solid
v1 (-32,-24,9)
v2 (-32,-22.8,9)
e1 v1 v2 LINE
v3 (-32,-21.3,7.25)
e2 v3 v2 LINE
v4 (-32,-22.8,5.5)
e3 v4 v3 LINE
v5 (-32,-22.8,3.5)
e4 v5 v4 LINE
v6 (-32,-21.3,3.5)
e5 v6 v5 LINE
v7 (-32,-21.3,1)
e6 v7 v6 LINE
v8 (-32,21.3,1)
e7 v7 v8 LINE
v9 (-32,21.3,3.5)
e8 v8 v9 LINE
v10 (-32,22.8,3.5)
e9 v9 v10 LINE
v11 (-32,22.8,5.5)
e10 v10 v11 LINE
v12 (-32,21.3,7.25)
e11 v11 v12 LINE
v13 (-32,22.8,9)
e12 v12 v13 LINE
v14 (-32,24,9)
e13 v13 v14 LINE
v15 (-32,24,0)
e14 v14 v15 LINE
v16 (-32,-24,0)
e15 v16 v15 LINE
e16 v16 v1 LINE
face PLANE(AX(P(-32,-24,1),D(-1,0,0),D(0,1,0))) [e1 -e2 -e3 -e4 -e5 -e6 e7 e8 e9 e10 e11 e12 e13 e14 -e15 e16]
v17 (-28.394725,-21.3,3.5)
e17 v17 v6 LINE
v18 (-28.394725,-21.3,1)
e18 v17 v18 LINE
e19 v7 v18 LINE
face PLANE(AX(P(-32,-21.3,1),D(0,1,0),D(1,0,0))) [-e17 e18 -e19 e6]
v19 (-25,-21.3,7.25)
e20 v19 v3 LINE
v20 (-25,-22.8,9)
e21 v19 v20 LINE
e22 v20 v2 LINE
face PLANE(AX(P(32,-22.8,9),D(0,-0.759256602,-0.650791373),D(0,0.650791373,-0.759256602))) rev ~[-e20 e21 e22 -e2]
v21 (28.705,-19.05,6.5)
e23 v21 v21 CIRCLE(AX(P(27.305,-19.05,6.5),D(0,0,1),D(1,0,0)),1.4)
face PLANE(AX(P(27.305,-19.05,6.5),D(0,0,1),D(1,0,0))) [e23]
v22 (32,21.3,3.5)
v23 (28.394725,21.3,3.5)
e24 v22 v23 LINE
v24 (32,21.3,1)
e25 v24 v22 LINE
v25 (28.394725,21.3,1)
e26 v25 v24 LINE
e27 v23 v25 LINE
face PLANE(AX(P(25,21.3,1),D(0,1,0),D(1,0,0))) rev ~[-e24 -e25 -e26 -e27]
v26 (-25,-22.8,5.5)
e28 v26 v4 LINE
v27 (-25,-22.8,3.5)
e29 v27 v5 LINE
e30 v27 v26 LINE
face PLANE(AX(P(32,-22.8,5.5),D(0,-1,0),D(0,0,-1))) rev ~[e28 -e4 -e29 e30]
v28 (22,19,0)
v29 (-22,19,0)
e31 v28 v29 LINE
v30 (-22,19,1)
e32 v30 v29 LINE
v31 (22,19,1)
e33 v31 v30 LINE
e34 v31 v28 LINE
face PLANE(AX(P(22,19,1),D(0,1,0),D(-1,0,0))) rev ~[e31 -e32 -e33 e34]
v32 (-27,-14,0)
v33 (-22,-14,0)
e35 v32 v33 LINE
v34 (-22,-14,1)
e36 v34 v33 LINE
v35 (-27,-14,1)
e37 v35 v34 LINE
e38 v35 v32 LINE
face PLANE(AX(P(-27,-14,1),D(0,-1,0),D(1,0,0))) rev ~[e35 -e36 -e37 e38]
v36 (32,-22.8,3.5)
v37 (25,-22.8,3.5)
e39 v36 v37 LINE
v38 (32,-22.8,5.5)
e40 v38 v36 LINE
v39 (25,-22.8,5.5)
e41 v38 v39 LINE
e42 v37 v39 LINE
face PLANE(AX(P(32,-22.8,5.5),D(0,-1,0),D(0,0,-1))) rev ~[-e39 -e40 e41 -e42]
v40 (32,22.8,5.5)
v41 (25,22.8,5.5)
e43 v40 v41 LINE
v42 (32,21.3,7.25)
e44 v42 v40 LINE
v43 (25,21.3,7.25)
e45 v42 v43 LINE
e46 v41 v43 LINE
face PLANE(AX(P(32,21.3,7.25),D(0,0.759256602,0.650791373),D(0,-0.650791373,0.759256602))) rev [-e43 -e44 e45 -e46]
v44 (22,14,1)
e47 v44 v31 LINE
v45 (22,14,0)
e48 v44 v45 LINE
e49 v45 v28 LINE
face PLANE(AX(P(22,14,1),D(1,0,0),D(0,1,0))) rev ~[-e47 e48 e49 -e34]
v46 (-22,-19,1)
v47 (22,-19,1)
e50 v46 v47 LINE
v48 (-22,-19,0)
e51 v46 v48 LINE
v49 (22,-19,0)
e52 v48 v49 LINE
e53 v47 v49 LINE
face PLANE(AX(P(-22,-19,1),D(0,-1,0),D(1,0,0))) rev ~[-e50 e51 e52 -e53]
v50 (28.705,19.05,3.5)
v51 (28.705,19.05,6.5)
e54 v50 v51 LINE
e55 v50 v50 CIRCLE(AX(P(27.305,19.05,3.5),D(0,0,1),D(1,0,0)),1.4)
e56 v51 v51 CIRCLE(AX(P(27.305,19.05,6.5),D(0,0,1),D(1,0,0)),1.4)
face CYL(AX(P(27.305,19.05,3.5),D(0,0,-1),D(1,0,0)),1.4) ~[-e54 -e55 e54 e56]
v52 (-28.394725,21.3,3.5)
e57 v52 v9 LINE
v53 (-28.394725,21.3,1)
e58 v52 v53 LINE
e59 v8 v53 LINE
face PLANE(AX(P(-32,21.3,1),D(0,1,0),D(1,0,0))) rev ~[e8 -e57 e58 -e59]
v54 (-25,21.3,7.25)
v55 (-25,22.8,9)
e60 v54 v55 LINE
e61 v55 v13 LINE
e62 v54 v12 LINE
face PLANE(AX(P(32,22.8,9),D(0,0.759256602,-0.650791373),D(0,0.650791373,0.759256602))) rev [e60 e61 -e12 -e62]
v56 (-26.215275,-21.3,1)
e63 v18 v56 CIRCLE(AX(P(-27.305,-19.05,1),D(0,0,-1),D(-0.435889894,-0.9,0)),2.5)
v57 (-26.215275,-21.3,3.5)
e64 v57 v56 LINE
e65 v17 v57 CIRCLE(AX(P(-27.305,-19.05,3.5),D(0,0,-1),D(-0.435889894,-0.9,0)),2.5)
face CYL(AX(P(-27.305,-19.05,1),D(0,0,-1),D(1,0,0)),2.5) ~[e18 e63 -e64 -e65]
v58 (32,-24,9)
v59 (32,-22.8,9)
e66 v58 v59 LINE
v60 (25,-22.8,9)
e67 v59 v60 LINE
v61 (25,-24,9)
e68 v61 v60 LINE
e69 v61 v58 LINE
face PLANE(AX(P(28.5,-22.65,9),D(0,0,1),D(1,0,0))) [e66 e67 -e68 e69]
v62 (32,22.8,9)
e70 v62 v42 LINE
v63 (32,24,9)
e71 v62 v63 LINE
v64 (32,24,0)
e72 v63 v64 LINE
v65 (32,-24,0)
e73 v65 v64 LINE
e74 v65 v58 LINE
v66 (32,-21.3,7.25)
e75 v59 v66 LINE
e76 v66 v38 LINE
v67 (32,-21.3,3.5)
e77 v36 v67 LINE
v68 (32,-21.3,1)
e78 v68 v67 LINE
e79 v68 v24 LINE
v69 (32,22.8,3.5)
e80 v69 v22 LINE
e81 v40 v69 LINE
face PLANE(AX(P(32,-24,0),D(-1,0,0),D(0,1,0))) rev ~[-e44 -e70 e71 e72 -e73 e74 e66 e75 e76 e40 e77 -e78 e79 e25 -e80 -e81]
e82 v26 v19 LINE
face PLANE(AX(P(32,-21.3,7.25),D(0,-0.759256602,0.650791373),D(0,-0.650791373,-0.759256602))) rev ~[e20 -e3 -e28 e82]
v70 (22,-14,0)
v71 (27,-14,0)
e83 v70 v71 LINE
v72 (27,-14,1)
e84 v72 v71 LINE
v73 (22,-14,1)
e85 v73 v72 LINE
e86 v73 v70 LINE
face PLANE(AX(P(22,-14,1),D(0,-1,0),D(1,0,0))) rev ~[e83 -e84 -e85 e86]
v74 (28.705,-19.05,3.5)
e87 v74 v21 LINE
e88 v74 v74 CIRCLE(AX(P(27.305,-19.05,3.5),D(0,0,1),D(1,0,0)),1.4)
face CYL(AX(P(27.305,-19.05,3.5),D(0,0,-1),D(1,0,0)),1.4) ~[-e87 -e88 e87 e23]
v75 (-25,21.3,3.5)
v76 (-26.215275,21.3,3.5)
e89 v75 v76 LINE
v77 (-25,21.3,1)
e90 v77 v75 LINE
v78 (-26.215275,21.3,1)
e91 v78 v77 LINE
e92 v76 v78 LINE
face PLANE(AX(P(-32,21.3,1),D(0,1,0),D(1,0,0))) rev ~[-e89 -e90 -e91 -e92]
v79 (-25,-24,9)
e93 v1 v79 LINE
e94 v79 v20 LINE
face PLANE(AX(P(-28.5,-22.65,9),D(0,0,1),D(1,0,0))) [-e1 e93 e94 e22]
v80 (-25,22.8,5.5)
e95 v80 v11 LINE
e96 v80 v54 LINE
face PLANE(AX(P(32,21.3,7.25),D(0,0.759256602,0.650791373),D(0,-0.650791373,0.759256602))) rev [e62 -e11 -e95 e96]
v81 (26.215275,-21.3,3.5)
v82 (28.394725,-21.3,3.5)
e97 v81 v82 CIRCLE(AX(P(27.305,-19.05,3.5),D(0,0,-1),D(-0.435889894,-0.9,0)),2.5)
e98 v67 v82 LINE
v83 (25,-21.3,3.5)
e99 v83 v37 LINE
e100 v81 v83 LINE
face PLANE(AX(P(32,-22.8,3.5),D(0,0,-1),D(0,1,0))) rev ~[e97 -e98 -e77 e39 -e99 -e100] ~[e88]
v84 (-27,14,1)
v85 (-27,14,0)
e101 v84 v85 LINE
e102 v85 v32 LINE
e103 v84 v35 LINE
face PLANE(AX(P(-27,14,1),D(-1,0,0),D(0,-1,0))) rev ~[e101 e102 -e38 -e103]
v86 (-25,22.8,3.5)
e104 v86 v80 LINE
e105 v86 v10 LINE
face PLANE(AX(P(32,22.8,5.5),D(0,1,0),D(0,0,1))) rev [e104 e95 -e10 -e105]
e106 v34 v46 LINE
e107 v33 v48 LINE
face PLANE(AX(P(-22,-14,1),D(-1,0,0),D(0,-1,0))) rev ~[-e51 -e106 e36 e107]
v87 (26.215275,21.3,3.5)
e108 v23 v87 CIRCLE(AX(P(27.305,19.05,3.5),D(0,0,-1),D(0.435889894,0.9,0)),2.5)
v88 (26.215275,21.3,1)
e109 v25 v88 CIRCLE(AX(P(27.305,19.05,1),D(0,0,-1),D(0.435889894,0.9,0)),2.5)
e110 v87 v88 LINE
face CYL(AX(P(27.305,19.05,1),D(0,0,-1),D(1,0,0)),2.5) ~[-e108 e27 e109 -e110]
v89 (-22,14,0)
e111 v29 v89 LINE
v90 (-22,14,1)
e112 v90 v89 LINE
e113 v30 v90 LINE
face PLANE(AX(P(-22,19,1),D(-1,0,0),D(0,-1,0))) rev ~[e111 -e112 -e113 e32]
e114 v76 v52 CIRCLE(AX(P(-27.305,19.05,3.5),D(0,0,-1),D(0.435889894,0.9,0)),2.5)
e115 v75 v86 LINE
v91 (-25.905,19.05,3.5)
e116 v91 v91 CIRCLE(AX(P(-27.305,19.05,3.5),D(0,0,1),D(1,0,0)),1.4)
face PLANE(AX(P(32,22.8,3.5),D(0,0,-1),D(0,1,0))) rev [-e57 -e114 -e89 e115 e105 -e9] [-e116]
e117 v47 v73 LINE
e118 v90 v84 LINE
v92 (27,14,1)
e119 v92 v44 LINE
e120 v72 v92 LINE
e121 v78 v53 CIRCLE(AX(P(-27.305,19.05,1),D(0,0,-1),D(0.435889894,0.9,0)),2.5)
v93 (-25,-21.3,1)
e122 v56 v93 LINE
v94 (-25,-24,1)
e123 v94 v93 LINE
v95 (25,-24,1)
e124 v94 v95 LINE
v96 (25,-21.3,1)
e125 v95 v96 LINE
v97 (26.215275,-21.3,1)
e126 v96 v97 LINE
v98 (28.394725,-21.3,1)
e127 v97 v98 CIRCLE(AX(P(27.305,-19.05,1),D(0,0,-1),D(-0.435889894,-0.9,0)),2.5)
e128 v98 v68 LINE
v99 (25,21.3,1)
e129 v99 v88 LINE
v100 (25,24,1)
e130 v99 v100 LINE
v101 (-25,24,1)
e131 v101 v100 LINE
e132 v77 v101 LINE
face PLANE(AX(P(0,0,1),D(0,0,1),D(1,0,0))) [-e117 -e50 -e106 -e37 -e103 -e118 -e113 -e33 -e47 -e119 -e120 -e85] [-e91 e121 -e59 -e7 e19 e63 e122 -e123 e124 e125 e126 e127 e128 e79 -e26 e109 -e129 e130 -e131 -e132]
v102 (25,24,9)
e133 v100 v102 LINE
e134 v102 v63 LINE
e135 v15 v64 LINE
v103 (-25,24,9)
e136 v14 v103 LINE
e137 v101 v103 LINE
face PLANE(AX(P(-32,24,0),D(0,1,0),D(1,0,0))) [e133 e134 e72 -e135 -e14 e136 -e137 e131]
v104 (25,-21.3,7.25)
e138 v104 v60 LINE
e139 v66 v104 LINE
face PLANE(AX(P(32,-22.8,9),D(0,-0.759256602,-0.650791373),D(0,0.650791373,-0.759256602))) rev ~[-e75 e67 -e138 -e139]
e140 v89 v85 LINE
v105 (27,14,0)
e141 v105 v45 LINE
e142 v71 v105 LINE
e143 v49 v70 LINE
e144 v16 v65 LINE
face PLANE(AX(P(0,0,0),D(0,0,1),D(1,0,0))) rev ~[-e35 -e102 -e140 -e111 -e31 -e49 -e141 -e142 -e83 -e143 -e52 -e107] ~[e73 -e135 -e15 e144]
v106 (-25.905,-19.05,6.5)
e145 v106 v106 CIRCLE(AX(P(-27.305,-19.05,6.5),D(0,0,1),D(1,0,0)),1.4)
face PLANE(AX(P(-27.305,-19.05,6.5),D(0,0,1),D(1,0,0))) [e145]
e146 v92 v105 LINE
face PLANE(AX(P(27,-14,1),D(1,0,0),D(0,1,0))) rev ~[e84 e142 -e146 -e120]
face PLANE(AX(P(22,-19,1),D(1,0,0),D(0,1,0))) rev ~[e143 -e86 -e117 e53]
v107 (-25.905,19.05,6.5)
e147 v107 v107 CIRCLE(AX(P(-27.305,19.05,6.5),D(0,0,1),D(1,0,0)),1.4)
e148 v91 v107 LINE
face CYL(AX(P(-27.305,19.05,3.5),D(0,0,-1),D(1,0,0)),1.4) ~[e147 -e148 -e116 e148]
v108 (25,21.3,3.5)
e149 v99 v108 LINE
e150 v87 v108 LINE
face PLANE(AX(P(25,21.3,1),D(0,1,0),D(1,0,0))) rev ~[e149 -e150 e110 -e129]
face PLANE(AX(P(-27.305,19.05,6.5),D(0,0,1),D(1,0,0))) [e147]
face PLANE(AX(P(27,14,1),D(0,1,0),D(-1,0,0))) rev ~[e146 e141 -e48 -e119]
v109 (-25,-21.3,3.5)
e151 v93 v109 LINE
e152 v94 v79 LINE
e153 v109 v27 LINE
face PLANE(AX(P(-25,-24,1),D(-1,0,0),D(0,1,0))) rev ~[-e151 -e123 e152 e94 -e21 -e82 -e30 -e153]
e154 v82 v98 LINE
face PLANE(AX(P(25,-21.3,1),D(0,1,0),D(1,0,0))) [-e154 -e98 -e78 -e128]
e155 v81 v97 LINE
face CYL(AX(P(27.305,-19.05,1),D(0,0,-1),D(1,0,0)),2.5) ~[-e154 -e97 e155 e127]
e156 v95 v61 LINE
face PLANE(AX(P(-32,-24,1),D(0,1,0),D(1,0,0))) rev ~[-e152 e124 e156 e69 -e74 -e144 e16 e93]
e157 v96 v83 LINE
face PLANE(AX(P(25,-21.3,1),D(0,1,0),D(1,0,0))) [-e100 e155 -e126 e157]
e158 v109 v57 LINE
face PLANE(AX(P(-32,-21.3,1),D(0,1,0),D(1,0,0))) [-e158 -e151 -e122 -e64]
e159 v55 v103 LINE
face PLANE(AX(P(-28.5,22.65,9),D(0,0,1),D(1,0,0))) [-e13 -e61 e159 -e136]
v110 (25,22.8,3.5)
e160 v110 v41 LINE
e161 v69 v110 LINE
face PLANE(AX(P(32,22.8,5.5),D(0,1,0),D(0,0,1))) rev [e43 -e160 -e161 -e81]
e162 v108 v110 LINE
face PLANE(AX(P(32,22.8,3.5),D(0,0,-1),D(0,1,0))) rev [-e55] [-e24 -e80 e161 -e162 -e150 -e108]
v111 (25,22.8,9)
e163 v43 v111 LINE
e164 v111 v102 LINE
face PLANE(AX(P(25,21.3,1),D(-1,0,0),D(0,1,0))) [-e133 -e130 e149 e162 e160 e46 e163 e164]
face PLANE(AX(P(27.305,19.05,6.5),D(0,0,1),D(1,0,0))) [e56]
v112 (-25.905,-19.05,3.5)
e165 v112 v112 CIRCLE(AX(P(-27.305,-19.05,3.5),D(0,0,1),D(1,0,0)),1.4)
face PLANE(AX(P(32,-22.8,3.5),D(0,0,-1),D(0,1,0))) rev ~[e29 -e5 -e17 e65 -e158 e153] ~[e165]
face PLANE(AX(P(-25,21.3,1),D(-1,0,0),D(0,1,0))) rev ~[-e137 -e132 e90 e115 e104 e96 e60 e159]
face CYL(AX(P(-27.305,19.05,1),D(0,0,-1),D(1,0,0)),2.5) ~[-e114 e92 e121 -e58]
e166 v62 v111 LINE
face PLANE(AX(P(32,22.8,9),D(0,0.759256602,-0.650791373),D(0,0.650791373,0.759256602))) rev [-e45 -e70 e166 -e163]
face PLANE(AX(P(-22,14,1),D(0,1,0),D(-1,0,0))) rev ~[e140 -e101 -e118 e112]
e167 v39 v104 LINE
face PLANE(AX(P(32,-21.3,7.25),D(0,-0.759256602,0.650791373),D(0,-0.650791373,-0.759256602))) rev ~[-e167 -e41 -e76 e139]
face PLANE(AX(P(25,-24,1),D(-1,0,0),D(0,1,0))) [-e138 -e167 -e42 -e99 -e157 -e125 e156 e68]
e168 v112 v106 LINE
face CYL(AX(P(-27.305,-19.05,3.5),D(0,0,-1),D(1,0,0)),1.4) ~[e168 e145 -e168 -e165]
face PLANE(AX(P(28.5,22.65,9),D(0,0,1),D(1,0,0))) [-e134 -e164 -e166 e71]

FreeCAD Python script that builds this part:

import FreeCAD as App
import Part
import Sketcher
from FreeCAD import Vector


def add_polygon(sketch, points):
    """Adds a closed chain of lines whose ends are joined by coincident constraints."""
    first, n = sketch.GeometryCount, len(points)
    for a, b in zip(points, points[1:] + points[:1]):
        sketch.addGeometry(Part.LineSegment(App.Vector(*a, 0), App.Vector(*b, 0)), False)
    for i in range(n):
        sketch.addConstraint(Sketcher.Constraint("Coincident", first + i, 2, first + (i + 1) % n, 1))

doc = App.newDocument("Part")
body = doc.addObject("PartDesign::Body", "Body")

sketch1 = body.newObject("Sketcher::SketchObject", "Sketch")
sketch1.AttachmentSupport = (doc.getObject("XY_Plane"), [""])
sketch1.MapMode = "FlatFace"
add_polygon(sketch1, [(-32, 24), (-32, -24), (32, -24), (32, 24)])
sketch1.addConstraint([
    Sketcher.Constraint("Vertical", 0),
    Sketcher.Constraint("Horizontal", 1),
    Sketcher.Constraint("Vertical", 2),
    Sketcher.Constraint("Horizontal", 3),
    Sketcher.Constraint("Symmetric", 0, 2, 2, 2, -1, 1),
    Sketcher.Constraint("DistanceX", 1, 1, 1, 2, 64.0),
    Sketcher.Constraint("DistanceY", 0, 2, 0, 1, 48.0),
])
pad1 = body.newObject("PartDesign::Pad", "Pad")
pad1.Profile = sketch1
pad1.Length = 1

sketch2 = body.newObject("Sketcher::SketchObject", "Sketch001")
sketch2.AttachmentSupport = (doc.getObject("XY_Plane"), [""])
sketch2.MapMode = "FlatFace"
sketch2.AttachmentOffset = App.Placement(Vector(0, 0, 1), App.Rotation())
add_polygon(sketch2, [(-27, 14), (-27, -14), (-22, -14), (-22, -19), (22, -19), (22, -14), (27, -14), (27, 14), (22, 14), (22, 19), (-22, 19), (-22, 14)])
sketch2.addConstraint([
    Sketcher.Constraint("Vertical", 0),
    Sketcher.Constraint("Horizontal", 1),
    Sketcher.Constraint("Vertical", 2),
    Sketcher.Constraint("Horizontal", 3),
    Sketcher.Constraint("Vertical", 4),
    Sketcher.Constraint("Horizontal", 5),
    Sketcher.Constraint("Vertical", 6),
    Sketcher.Constraint("Horizontal", 7),
    Sketcher.Constraint("Vertical", 8),
    Sketcher.Constraint("Horizontal", 9),
    Sketcher.Constraint("Vertical", 10),
    Sketcher.Constraint("Horizontal", 11),
    Sketcher.Constraint("Symmetric", 0, 2, 6, 2, -1, 1),
    Sketcher.Constraint("Symmetric", 2, 2, 8, 2, -1, 1),
    Sketcher.Constraint("Symmetric", 4, 2, 10, 2, -1, 1),
    Sketcher.Constraint("Symmetric", 1, 2, 4, 2, -2),
    Sketcher.Constraint("Equal", 11, 2),
    Sketcher.Constraint("DistanceX", 1, 1, 1, 2, 5.0),
    Sketcher.Constraint("DistanceX", 3, 1, 3, 2, 44.0),
    Sketcher.Constraint("DistanceY", 0, 2, 0, 1, 28.0),
])
pocket1 = body.newObject("PartDesign::Pocket", "Pocket")
pocket1.Profile = sketch2
pocket1.Type = "ThroughAll"

sketch3 = body.newObject("Sketcher::SketchObject", "Sketch002")
sketch3.AttachmentSupport = (doc.getObject("XY_Plane"), [""])
sketch3.MapMode = "FlatFace"
sketch3.AttachmentOffset = App.Placement(Vector(0, 0, 1), App.Rotation())
sketch3.addGeometry([
    Part.Circle(Vector(-27.3, 19.1, 0), Vector(0, 0, 1), 2.5),
    Part.Circle(Vector(-27.3, -19.1, 0), Vector(0, 0, 1), 2.5),
    Part.Circle(Vector(27.3, 19.1, 0), Vector(0, 0, 1), 2.5),
    Part.Circle(Vector(27.3, -19.1, 0), Vector(0, 0, 1), 2.5),
], False)
sketch3.addConstraint([
    Sketcher.Constraint("Equal", 0, 1),
    Sketcher.Constraint("Equal", 1, 2),
    Sketcher.Constraint("Equal", 2, 3),
    Sketcher.Constraint("Symmetric", 1, 3, 2, 3, -1, 1),
    Sketcher.Constraint("Symmetric", 0, 3, 3, 3, -1, 1),
    Sketcher.Constraint("Symmetric", 0, 3, 2, 3, -2),
    Sketcher.Constraint("Diameter", 0, 5.0),
    Sketcher.Constraint("DistanceY", 1, 3, 0, 3, 38.1),
    Sketcher.Constraint("DistanceX", 0, 3, 2, 3, 54.61),
])
pad2 = body.newObject("PartDesign::Pad", "Pad001")
pad2.Profile = sketch3
pad2.Length = 2.5

sketch4 = body.newObject("Sketcher::SketchObject", "Sketch003")
sketch4.AttachmentSupport = (doc.getObject("XY_Plane"), [""])
sketch4.MapMode = "FlatFace"
sketch4.AttachmentOffset = App.Placement(Vector(0, 0, 3.5), App.Rotation())
sketch4.addGeometry([
    Part.Circle(Vector(27.3, 19.1, 0), Vector(0, 0, 1), 1.4),
    Part.Circle(Vector(-27.3, -19.1, 0), Vector(0, 0, 1), 1.4),
    Part.Circle(Vector(27.3, -19.1, 0), Vector(0, 0, 1), 1.4),
    Part.Circle(Vector(-27.3, 19.1, 0), Vector(0, 0, 1), 1.4),
], False)
sketch4.addConstraint([
    Sketcher.Constraint("Equal", 0, 1),
    Sketcher.Constraint("Equal", 1, 2),
    Sketcher.Constraint("Equal", 2, 3),
    Sketcher.Constraint("Symmetric", 0, 3, 1, 3, -1, 1),
    Sketcher.Constraint("Symmetric", 2, 3, 3, 3, -1, 1),
    Sketcher.Constraint("Symmetric", 1, 3, 2, 3, -2),
    Sketcher.Constraint("Diameter", 0, 2.8),
    Sketcher.Constraint("DistanceY", 1, 3, 0, 3, 38.1),
    Sketcher.Constraint("DistanceX", 1, 3, 0, 3, 54.61),
])
pad3 = body.newObject("PartDesign::Pad", "Pad002")
pad3.Profile = sketch4
pad3.Length = 3

sketch5 = body.newObject("Sketcher::SketchObject", "Sketch004")
sketch5.AttachmentSupport = (doc.getObject("XY_Plane"), [""])
sketch5.MapMode = "FlatFace"
sketch5.AttachmentOffset = App.Placement(Vector(0, 0, 1), App.Rotation())
add_polygon(sketch5, [(-32, -21.3), (-32, -24), (-25, -24), (-25, -21.3)])
add_polygon(sketch5, [(25, -21.3), (25, -24), (32, -24), (32, -21.3)])
add_polygon(sketch5, [(25, 24), (25, 21.3), (32, 21.3), (32, 24)])
add_polygon(sketch5, [(-32, 24), (-32, 21.3), (-25, 21.3), (-25, 24)])
sketch5.addConstraint([
    Sketcher.Constraint("Vertical", 0),
    Sketcher.Constraint("Horizontal", 1),
    Sketcher.Constraint("Vertical", 2),
    Sketcher.Constraint("Horizontal", 3),
    Sketcher.Constraint("Vertical", 4),
    Sketcher.Constraint("Horizontal", 5),
    Sketcher.Constraint("Vertical", 6),
    Sketcher.Constraint("Horizontal", 7),
    Sketcher.Constraint("Vertical", 8),
    Sketcher.Constraint("Horizontal", 9),
    Sketcher.Constraint("Vertical", 10),
    Sketcher.Constraint("Horizontal", 11),
    Sketcher.Constraint("Vertical", 12),
    Sketcher.Constraint("Horizontal", 13),
    Sketcher.Constraint("Vertical", 14),
    Sketcher.Constraint("Horizontal", 15),
    Sketcher.Constraint("Symmetric", 2, 2, 8, 2, -1, 1),
    Sketcher.Constraint("Symmetric", 0, 2, 10, 2, -1, 1),
    Sketcher.Constraint("Symmetric", 6, 2, 12, 2, -1, 1),
    Sketcher.Constraint("Symmetric", 4, 2, 14, 2, -1, 1),
    Sketcher.Constraint("Symmetric", 1, 2, 4, 2, -2),
    Sketcher.Constraint("Symmetric", 3, 2, 6, 2, -2),
    Sketcher.Constraint("DistanceX", 1, 1, 1, 2, 7.0),
    Sketcher.Constraint("DistanceY", 0, 2, 0, 1, 2.7),
    Sketcher.Constraint("DistanceX", 0, 2, -1, 1, 32.0),
    Sketcher.Constraint("DistanceY", 0, 2, -1, 1, 24.0),
])
pad4 = body.newObject("PartDesign::Pad", "Pad003")
pad4.Profile = sketch5
pad4.Length = 8

sketch6 = body.newObject("Sketcher::SketchObject", "Sketch005")
sketch6.AttachmentSupport = (doc.getObject("YZ_Plane"), [""])
sketch6.MapMode = "FlatFace"
sketch6.AttachmentOffset = App.Placement(Vector(0, 0, 32), App.Rotation())
add_polygon(sketch6, [(-22.8, 9), (-21.3, 7.2), (-22.8, 5.5), (-22.8, 3.5), (-21.3, 3.5), (-21.2, 10), (-22.8, 10)])
sketch6.addConstraint([
    Sketcher.Constraint("Vertical", 2),
    Sketcher.Constraint("Horizontal", 3),
    Sketcher.Constraint("Horizontal", 5),
    Sketcher.Constraint("Vertical", 6),
    Sketcher.Constraint("Vertical", 0, 2, 3, 2),
    Sketcher.Constraint("Vertical", 2, 2, 5, 2),
    Sketcher.Constraint("Equal", 0, 1),
    Sketcher.Constraint("DistanceY", 2, 2, 2, 1, 2.0),
    Sketcher.Constraint("DistanceY", 6, 2, 6, 1, 1.0),
    Sketcher.Constraint("DistanceX", 3, 1, 3, 2, 1.5),
    Sketcher.Constraint("DistanceX", 5, 2, 5, 1, 1.6),
    Sketcher.Constraint("DistanceY", -1, 1, 4, 2, 10.0),
    Sketcher.Constraint("DistanceX", 0, 2, -1, 1, 21.3),
    Sketcher.Constraint("DistanceY", -1, 1, 1, 2, 5.5),
])
pocket2 = body.newObject("PartDesign::Pocket", "Pocket001")
pocket2.Profile = sketch6
pocket2.Type = "ThroughAll"
doc.recompute()

mirrored = body.newObject("PartDesign::Mirrored", "Mirrored")
mirrored.Originals = [pocket2]
mirrored.MirrorPlane = (doc.getObject("XZ_Plane"), [""])
body.Tip = mirrored

doc.recompute()
